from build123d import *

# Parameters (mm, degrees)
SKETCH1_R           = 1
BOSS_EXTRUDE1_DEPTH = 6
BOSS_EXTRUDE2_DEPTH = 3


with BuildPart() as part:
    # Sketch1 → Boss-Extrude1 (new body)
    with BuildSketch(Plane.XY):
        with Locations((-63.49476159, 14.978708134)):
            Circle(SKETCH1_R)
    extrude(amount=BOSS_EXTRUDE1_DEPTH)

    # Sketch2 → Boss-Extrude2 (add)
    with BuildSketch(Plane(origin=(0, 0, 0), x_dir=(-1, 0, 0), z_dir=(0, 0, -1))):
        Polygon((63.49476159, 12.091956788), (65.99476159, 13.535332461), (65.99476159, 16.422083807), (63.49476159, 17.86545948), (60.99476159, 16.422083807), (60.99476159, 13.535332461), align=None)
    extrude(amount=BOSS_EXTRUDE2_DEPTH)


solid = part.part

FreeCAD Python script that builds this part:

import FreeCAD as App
import Part
import Sketcher

V = App.Vector
Q = App.Units.Quantity


def add_polygon(sketch, points):
    """Adds a closed chain of lines whose ends are joined by coincident constraints."""
    first, n = sketch.GeometryCount, len(points)
    for a, b in zip(points, points[1:] + points[:1]):
        sketch.addGeometry(Part.LineSegment(App.Vector(*a, 0), App.Vector(*b, 0)), False)
    for i in range(n):
        sketch.addConstraint(Sketcher.Constraint("Coincident", first + i, 2, first + (i + 1) % n, 1))

doc = App.newDocument("Part")
body = doc.addObject("PartDesign::Body", "Body")

# Sketch on XY plane
sketch1 = body.newObject("Sketcher::SketchObject", "Sketch")
sketch1.AttachmentSupport = (doc.getObject("XY_Plane"), [""])
sketch1.MapMode = "FlatFace"
sketch1.addGeometry(Part.Circle(V(-63.5, 15, 0), V(0, 0, 1), 1), False)
sketch1.addConstraint([
    Sketcher.Constraint("Diameter", 0, Q("2 mm")),
    Sketcher.Constraint("DistanceX", 0, 3, -1, 1, Q("63.494762 mm")),
    Sketcher.Constraint("DistanceY", -1, 1, 0, 3, Q("14.978708 mm")),
])
pad1 = body.newObject("PartDesign::Pad", "Pad")
pad1.Profile = sketch1
pad1.Length = 6

# Sketch on XY plane
sketch2 = body.newObject("Sketcher::SketchObject", "Sketch001")
sketch2.AttachmentSupport = (doc.getObject("XY_Plane"), [""])
sketch2.MapMode = "FlatFace"
add_polygon(sketch2, [(-63.5, 12.1), (-66, 13.5), (-66, 16.4), (-63.5, 17.9), (-61, 16.4), (-61, 13.5)])  # lines 0-5
sketch2.addConstraint([
    Sketcher.Constraint("Vertical", 1),
    Sketcher.Constraint("Vertical", 4),
    Sketcher.Constraint("Parallel", 0, 3),
    Sketcher.Constraint("Parallel", 2, 5),
    Sketcher.Constraint("Horizontal", 1, 2, 3, 2),
    Sketcher.Constraint("Horizontal", 0, 2, 4, 2),
    Sketcher.Constraint("Vertical", 2, 2, 5, 2),
    Sketcher.Constraint("Angle", 0, Q("150 deg")),
    Sketcher.Constraint("DistanceX", 1, 2, 3, 2, Q("5 mm")),
    Sketcher.Constraint("DistanceY", 1, 1, 1, 2, Q("2.886751 mm")),
    Sketcher.Constraint("DistanceX", 0, 2, -1, 1, Q("65.994762 mm")),
    Sketcher.Constraint("DistanceY", -1, 1, 2, 2, Q("17.865459 mm")),
])
pad2 = body.newObject("PartDesign::Pad", "Pad001")
pad2.Profile = sketch2
pad2.Length = 3
pad2.Reversed = True

doc.recompute()
